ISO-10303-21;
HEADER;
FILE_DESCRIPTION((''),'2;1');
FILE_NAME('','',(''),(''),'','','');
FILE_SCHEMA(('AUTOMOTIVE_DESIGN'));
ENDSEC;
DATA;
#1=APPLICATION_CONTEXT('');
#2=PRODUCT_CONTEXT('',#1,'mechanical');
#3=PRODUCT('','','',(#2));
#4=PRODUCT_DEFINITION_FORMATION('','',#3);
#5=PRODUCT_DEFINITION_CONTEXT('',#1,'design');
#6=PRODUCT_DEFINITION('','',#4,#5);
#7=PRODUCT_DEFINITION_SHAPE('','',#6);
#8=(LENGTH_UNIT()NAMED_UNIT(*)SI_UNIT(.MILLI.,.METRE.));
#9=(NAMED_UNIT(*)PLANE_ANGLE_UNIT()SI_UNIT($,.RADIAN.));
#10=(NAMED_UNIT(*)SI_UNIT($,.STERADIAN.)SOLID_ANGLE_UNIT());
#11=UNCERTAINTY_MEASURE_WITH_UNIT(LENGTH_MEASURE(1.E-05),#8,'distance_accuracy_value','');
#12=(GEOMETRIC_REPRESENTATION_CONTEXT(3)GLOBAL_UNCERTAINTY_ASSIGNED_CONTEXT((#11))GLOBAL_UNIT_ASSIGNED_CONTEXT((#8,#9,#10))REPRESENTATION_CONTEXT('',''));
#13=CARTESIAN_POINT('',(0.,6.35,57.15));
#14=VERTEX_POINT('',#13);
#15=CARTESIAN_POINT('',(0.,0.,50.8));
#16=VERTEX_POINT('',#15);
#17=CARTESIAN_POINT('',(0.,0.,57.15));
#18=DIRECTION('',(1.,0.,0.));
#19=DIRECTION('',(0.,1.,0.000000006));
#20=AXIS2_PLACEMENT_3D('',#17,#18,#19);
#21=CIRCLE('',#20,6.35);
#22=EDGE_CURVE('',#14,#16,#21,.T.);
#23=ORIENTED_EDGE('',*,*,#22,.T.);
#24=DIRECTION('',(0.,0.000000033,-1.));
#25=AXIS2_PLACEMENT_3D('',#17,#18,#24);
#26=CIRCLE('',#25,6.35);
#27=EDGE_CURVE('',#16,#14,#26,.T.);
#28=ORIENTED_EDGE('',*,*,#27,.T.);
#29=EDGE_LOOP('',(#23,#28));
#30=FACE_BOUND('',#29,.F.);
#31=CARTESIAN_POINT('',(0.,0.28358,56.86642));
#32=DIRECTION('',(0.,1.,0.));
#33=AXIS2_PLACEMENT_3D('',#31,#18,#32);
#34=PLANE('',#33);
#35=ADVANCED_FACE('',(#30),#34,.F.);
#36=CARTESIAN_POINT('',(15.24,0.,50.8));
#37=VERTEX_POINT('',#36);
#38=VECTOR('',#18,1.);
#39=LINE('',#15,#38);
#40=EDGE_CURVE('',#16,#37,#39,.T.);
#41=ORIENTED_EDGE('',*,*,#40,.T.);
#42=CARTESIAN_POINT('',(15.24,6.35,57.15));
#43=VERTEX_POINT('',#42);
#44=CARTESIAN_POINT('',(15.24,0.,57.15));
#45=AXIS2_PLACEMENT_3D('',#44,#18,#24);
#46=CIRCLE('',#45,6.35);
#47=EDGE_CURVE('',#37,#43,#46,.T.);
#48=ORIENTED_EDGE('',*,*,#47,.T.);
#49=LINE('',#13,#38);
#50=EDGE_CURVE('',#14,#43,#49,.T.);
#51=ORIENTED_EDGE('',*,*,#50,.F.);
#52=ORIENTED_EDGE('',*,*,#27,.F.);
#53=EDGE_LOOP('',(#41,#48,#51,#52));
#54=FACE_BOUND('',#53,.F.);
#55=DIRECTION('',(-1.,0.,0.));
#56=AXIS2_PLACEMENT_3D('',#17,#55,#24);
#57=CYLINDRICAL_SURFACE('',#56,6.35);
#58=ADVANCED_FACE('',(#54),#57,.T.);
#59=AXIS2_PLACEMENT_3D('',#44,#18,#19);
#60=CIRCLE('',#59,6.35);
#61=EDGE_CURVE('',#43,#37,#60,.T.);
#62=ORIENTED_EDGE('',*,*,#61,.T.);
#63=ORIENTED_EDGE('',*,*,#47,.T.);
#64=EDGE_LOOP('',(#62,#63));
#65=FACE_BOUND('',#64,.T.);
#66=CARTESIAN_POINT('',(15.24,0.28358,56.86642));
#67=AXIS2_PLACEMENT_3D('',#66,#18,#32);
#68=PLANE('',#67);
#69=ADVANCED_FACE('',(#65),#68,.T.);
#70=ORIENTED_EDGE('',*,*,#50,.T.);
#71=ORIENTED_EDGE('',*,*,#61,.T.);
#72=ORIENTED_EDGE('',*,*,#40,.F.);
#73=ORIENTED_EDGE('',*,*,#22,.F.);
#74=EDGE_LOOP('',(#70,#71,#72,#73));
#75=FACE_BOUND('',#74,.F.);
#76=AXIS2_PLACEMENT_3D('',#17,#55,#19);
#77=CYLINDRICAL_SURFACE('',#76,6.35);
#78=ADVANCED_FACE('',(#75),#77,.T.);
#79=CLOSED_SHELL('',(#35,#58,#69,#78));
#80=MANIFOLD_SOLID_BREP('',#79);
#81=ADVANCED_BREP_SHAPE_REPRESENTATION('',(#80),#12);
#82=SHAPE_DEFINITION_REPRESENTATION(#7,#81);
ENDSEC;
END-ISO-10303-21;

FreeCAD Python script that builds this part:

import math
import FreeCAD as App
import Part
import Sketcher

V = App.Vector
Q = App.Units.Quantity

doc = App.newDocument("Part")
body = doc.addObject("PartDesign::Body", "Body")

# Sketch on YZ plane
sketch1 = body.newObject("Sketcher::SketchObject", "Sketch")
sketch1.AttachmentSupport = (doc.getObject("YZ_Plane"), [""])
sketch1.MapMode = "FlatFace"
sketch1.addGeometry([
    Part.ArcOfCircle(Part.Circle(V(0, 57, 0), V(0, 0, 1), 6), math.radians(0), math.radians(270)),
    Part.ArcOfCircle(Part.Circle(V(0, 57, 0), V(0, 0, 1), 6), math.radians(-90), math.radians(0)),
], False)
sketch1.addConstraint([
    Sketcher.Constraint("Tangent", 0, 1, 1, 2),
    Sketcher.Constraint("Coincident", 1, 1, 0, 2),
    Sketcher.Constraint("PointOnObject", 0, 3, -2),
    Sketcher.Constraint("PointOnObject", 1, 1, -2),
    Sketcher.Constraint("Horizontal", 1, 3, 0, 1),
    Sketcher.Constraint("Radius", 0, Q("0.25 in")),
    Sketcher.Constraint("DistanceY", -1, 1, 1, 1, Q("2 in")),
])
pad1 = body.newObject("PartDesign::Pad", "Pad")
pad1.Profile = sketch1
pad1.Length = Q("0.6 in")

doc.recompute()
